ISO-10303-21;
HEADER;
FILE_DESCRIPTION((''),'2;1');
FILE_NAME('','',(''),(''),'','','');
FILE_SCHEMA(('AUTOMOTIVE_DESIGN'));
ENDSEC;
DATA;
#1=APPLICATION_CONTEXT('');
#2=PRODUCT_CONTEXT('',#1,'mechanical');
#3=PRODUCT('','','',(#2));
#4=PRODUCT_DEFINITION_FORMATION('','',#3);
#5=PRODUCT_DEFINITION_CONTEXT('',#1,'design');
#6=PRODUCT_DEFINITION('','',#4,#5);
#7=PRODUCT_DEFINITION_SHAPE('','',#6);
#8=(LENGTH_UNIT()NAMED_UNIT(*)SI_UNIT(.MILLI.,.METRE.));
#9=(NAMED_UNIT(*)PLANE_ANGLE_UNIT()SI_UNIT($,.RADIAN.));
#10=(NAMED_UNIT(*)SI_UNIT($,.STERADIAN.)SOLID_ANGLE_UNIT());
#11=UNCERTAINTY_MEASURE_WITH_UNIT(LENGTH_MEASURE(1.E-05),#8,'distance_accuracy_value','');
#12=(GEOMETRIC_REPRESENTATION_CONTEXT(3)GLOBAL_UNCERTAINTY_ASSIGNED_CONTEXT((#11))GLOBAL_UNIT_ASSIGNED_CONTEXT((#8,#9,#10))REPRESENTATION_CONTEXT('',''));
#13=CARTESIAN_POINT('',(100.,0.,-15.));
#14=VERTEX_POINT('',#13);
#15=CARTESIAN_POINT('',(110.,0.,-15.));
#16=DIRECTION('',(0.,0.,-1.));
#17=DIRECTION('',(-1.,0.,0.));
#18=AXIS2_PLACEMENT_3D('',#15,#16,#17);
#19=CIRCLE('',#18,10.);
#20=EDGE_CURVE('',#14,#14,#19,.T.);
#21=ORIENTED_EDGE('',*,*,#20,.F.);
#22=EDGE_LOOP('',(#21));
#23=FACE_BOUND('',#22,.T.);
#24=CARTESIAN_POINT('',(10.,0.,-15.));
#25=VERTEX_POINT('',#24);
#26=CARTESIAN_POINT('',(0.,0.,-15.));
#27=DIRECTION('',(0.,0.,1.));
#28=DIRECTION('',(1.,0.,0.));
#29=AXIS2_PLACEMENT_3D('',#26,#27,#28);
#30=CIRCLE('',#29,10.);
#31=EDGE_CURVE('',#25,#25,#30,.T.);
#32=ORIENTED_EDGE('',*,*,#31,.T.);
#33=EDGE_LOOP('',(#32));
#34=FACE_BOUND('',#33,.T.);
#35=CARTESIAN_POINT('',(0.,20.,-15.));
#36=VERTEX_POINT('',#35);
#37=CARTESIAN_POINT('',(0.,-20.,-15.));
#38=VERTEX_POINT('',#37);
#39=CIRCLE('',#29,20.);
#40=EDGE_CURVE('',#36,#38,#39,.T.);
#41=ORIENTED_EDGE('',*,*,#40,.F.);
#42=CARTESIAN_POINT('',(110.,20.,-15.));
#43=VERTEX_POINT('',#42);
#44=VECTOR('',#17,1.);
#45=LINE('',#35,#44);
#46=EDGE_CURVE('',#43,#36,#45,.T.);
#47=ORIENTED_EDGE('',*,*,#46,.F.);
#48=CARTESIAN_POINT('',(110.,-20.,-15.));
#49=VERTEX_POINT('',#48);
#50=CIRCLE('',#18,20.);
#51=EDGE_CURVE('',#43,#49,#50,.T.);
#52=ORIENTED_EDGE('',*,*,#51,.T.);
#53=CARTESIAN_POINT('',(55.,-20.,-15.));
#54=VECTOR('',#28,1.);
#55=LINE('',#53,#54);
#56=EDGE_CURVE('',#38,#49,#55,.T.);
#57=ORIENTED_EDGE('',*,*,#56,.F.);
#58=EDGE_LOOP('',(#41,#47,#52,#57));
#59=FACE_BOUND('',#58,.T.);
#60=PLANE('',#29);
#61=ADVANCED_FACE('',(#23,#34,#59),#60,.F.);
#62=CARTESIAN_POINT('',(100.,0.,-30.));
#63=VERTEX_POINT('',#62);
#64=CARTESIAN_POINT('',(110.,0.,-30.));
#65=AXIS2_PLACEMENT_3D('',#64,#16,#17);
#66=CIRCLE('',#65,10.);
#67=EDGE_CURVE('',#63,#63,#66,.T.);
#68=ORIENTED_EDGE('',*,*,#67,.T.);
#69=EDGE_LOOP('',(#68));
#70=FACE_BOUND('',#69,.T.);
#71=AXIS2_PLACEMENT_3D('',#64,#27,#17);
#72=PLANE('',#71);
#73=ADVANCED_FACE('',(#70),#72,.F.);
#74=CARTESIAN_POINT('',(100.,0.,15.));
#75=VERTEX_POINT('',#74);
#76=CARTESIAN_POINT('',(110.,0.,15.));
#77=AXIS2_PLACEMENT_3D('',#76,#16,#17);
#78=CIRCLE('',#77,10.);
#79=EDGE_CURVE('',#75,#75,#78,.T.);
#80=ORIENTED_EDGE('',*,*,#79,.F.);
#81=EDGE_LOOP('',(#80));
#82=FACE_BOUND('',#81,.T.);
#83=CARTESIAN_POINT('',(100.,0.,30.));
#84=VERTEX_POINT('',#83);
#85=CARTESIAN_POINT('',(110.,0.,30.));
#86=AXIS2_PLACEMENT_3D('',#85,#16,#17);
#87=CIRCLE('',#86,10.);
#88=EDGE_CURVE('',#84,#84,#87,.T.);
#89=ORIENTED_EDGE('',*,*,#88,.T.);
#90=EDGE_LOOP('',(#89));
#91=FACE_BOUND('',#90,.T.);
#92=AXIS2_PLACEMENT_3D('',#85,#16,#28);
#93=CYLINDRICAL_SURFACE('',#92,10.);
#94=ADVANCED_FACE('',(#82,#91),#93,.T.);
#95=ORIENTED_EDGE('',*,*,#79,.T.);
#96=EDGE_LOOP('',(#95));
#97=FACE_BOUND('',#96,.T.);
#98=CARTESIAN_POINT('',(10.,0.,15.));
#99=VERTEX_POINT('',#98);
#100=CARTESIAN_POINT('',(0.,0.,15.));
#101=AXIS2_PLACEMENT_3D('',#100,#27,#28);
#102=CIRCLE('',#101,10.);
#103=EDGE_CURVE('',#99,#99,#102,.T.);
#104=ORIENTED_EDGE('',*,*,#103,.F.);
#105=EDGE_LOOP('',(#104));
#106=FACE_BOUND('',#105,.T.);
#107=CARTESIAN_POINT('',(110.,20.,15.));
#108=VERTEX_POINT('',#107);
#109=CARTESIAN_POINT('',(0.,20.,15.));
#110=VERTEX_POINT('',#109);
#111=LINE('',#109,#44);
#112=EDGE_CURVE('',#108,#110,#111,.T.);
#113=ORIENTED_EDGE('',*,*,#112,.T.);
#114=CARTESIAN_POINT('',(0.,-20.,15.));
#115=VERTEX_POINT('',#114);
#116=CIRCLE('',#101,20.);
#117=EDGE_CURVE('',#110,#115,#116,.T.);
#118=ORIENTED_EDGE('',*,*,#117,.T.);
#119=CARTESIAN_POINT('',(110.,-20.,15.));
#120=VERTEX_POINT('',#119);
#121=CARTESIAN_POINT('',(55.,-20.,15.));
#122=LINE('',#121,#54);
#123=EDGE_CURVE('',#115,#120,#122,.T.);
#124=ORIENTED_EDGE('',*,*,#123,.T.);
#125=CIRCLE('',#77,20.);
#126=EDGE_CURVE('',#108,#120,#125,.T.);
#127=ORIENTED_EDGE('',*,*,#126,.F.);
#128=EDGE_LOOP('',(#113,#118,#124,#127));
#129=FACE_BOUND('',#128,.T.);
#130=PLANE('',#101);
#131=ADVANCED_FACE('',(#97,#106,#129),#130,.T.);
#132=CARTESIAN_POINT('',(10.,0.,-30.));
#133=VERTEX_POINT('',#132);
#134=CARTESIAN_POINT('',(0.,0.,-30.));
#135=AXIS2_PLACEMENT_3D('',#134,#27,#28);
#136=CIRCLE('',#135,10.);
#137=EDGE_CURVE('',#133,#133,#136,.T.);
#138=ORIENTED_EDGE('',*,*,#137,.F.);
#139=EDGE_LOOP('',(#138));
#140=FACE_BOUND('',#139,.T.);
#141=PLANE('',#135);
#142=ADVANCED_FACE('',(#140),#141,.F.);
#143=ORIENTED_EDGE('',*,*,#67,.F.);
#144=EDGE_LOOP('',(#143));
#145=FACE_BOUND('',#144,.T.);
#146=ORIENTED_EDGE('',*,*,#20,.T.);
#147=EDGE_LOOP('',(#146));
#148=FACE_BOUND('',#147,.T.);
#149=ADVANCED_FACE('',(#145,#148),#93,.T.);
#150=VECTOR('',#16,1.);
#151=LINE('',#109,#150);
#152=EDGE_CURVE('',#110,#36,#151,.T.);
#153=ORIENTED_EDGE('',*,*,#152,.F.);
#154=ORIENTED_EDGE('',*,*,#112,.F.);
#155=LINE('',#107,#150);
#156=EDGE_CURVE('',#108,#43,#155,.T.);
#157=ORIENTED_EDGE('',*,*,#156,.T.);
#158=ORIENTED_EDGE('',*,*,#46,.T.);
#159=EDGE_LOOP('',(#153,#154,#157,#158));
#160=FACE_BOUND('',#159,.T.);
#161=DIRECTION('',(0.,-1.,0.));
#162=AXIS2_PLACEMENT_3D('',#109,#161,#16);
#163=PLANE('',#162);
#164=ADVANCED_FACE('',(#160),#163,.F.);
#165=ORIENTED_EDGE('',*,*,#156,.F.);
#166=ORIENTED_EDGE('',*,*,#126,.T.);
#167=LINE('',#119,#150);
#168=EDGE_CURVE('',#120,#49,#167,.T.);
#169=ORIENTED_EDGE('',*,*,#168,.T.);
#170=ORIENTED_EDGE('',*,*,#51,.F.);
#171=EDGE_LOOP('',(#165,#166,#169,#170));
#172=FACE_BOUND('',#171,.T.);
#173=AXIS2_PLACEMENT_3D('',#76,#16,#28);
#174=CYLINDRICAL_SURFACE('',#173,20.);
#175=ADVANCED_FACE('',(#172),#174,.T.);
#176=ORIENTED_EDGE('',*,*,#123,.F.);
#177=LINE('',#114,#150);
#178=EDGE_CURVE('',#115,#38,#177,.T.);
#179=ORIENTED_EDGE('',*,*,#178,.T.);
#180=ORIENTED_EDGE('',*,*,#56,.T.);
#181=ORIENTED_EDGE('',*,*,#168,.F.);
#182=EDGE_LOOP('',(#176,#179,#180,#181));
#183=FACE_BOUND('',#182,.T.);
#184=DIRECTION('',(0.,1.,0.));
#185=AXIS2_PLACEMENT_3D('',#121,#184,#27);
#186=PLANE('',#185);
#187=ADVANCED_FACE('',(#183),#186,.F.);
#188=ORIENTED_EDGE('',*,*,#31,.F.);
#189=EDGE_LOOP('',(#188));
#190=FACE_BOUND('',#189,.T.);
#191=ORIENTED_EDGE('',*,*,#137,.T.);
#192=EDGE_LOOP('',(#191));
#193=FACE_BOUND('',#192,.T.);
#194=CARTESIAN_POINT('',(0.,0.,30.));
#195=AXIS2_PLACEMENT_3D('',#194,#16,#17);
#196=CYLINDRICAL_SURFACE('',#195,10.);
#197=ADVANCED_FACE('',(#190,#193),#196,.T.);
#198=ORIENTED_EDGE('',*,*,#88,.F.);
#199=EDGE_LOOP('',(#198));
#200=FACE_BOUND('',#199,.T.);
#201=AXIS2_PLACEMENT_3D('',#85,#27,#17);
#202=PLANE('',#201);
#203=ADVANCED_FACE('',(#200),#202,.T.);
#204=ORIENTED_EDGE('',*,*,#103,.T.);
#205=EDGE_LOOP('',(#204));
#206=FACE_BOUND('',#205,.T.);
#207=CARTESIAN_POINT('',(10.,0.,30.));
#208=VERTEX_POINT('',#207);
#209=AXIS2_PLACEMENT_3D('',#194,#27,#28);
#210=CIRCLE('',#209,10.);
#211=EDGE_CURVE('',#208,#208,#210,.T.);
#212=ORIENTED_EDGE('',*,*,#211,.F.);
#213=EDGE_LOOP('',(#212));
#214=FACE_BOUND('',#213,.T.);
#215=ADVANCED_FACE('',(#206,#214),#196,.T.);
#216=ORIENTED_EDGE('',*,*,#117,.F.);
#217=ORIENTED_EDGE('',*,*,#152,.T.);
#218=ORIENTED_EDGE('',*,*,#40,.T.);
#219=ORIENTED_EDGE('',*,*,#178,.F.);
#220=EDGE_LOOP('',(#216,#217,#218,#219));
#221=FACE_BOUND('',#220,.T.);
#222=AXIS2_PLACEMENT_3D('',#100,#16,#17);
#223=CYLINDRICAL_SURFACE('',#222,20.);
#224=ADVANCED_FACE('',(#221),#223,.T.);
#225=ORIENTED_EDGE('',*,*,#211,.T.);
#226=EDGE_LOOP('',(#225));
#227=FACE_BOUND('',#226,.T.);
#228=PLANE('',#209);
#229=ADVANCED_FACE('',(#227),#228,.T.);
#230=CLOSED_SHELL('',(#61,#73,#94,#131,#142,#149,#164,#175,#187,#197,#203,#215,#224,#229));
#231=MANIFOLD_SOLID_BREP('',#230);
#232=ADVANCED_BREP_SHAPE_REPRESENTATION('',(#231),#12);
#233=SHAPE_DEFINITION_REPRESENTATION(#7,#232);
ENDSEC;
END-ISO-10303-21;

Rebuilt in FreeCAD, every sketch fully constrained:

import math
import FreeCAD as App
import Part
import Sketcher

V = App.Vector

doc = App.newDocument("Part")
body = doc.addObject("PartDesign::Body", "Body")

# Sketch on XY plane
sketch1 = doc.addObject("Sketcher::SketchObject", "Sketch")
body.addObject(sketch1)
sketch1.AttachmentSupport = (doc.XY_Plane, [""])
sketch1.MapMode = "FlatFace"
sketch1.addGeometry(Part.Circle(V(0, 0, 0), V(0, 0, 1), 10), False)
sketch1.addConstraint([
    Sketcher.Constraint("Coincident", 0, 3, -1, 1),
    Sketcher.Constraint("Diameter", 0, 20.0),
])
pad1 = doc.addObject("PartDesign::Pad", "Pad")
body.addObject(pad1)
pad1.Profile = sketch1
pad1.Length = 60
pad1.Midplane = True

# Sketch on XY plane
sketch2 = doc.addObject("Sketcher::SketchObject", "Sketch001")
body.addObject(sketch2)
sketch2.AttachmentSupport = (doc.XY_Plane, [""])
sketch2.MapMode = "FlatFace"
sketch2.addGeometry([
    Part.LineSegment(V(55, 20, 0), V(0, 20, 0)),
    Part.ArcOfCircle(Part.Circle(V(0, 0, 0), V(0, 0, 1), 20), math.radians(90), math.radians(270)),
    Part.LineSegment(V(0, -20, 0), V(55, -20, 0)),
    Part.LineSegment(V(55, -20, 0), V(55, 20, 0)),
], False)
sketch2.addConstraint([
    Sketcher.Constraint("Tangent", 0, 2, 1, 1),
    Sketcher.Constraint("Tangent", 1, 2, 2, 1),
    Sketcher.Constraint("Coincident", 2, 2, 3, 1),
    Sketcher.Constraint("Coincident", 3, 2, 0, 1),
    Sketcher.Constraint("Horizontal", 0),
    Sketcher.Constraint("Horizontal", 2),
    Sketcher.Constraint("Vertical", 3),
    Sketcher.Constraint("Coincident", 1, 3, -1, 1),
    Sketcher.Constraint("Radius", 1, 20.0),
    Sketcher.Constraint("DistanceX", 0, 2, 0, 1, 55.0),
])
pad2 = doc.addObject("PartDesign::Pad", "Pad001")
body.addObject(pad2)
pad2.Profile = sketch2
pad2.Length = 30
pad2.Midplane = True
doc.recompute()

datumplane = doc.addObject("PartDesign::Plane", "DatumPlane")
body.addObject(datumplane)
datumplane.AttachmentSupport = (doc.YZ_Plane, [""])
datumplane.MapMode = "FlatFace"
datumplane.AttachmentOffset = App.Placement(V(0, 0, 55), App.Rotation())
mirrored = doc.addObject("PartDesign::Mirrored", "Mirrored")
body.addObject(mirrored)
mirrored.Originals = [pad1, pad2]
mirrored.MirrorPlane = (datumplane, [""])
body.Tip = mirrored

doc.recompute()
